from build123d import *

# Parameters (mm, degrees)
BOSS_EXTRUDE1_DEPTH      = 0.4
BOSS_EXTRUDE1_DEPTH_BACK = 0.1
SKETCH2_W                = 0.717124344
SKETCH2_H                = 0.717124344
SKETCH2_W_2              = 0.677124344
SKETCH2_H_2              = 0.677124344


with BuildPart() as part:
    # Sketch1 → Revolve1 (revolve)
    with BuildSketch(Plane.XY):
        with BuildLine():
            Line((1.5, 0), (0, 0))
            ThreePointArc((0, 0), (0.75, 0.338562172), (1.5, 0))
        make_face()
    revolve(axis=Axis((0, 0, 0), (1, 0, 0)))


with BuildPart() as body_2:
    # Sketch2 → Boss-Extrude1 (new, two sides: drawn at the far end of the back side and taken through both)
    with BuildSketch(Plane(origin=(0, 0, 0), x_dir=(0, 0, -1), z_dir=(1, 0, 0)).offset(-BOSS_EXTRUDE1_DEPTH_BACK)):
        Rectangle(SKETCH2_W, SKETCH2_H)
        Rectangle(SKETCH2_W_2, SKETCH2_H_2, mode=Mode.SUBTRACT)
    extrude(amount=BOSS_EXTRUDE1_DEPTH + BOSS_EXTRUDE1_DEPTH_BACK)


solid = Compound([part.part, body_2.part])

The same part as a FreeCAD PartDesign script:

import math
import FreeCAD as App
import Part
import Sketcher
from FreeCAD import Vector

doc = App.newDocument("Part")
body = doc.addObject("PartDesign::Body", "Body")

# Sketch on XY plane
sketch1 = body.newObject("Sketcher::SketchObject", "Sketch")
sketch1.AttachmentSupport = (doc.getObject("XY_Plane"), [""])
sketch1.MapMode = "FlatFace"
sketch1.addGeometry([
    Part.LineSegment(Vector(0, 0, 0), Vector(1.5, 0, 0)),
    Part.ArcOfCircle(Part.Circle(Vector(0.75, -0.661438, 0), Vector(0, 0, 1), 1), math.radians(41.409622), math.radians(138.590378)),
], False)
sketch1.addConstraint([
    Sketcher.Constraint("Coincident", 0, 1, 1, 2),
    Sketcher.Constraint("Coincident", 1, 1, 0, 2),
    Sketcher.Constraint("Horizontal", 0),
    Sketcher.Constraint("Coincident", 0, 1, -1, 1),
    Sketcher.Constraint("Radius", 1, 1.0),
    Sketcher.Constraint("DistanceX", 0, 1, 0, 2, 1.5),
])
revolution = body.newObject("PartDesign::Revolution", "Revolution")
revolution.Profile = sketch1
revolution.ReferenceAxis = (sketch1, ["H_Axis"])
revolution.Angle = 360
body2 = doc.addObject("PartDesign::Body", "Body001")

# Sketch on YZ plane
sketch2 = body2.newObject("Sketcher::SketchObject", "Sketch001")
sketch2.AttachmentSupport = (doc.getObject("YZ_Plane001"), [""])
sketch2.MapMode = "FlatFace"
sketch2.addGeometry([
    Part.LineSegment(Vector(0.358562, 0.358562, 0), Vector(-0.358562, 0.358562, 0)),  # 0
    Part.LineSegment(Vector(-0.358562, 0.358562, 0), Vector(-0.358562, -0.358562, 0)),  # 1
    Part.LineSegment(Vector(-0.358562, -0.358562, 0), Vector(0.358562, -0.358562, 0)),  # 2
    Part.LineSegment(Vector(0.358562, -0.358562, 0), Vector(0.358562, 0.358562, 0)),  # 3
    Part.LineSegment(Vector(-0.338562, -0.338562, 0), Vector(-0.338562, 0.338562, 0)),  # 4
    Part.LineSegment(Vector(-0.338562, 0.338562, 0), Vector(0.338562, 0.338562, 0)),  # 5
    Part.LineSegment(Vector(0.338562, 0.338562, 0), Vector(0.338562, -0.338562, 0)),  # 6
    Part.LineSegment(Vector(0.338562, -0.338562, 0), Vector(-0.338562, -0.338562, 0)),  # 7
], False)
sketch2.addConstraint([
    Sketcher.Constraint("Coincident", 0, 2, 1, 1),
    Sketcher.Constraint("Coincident", 1, 2, 2, 1),
    Sketcher.Constraint("Coincident", 2, 2, 3, 1),
    Sketcher.Constraint("Coincident", 3, 2, 0, 1),
    Sketcher.Constraint("Coincident", 4, 2, 5, 1),
    Sketcher.Constraint("Coincident", 5, 2, 6, 1),
    Sketcher.Constraint("Coincident", 6, 2, 7, 1),
    Sketcher.Constraint("Coincident", 7, 2, 4, 1),
    Sketcher.Constraint("Horizontal", 0),
    Sketcher.Constraint("Vertical", 1),
    Sketcher.Constraint("Horizontal", 2),
    Sketcher.Constraint("Vertical", 3),
    Sketcher.Constraint("Vertical", 4),
    Sketcher.Constraint("Horizontal", 5),
    Sketcher.Constraint("Vertical", 6),
    Sketcher.Constraint("Horizontal", 7),
    Sketcher.Constraint("Symmetric", 0, 2, 2, 2, -1, 1),
    Sketcher.Constraint("Symmetric", 4, 2, 6, 2, -1, 1),
    Sketcher.Constraint("Equal", 2, 1),
    Sketcher.Constraint("Equal", 7, 4),
    Sketcher.Constraint("DistanceX", 0, 2, 4, 2, 0.02),
    Sketcher.Constraint("DistanceX", 0, 2, 0, 1, 0.717124),
])
pad1 = body2.newObject("PartDesign::Pad", "Pad")
pad1.Profile = sketch2
pad1.Type = "TwoLengths"
pad1.Length = 0.4
pad1.Length2 = 0.1

doc.recompute()
